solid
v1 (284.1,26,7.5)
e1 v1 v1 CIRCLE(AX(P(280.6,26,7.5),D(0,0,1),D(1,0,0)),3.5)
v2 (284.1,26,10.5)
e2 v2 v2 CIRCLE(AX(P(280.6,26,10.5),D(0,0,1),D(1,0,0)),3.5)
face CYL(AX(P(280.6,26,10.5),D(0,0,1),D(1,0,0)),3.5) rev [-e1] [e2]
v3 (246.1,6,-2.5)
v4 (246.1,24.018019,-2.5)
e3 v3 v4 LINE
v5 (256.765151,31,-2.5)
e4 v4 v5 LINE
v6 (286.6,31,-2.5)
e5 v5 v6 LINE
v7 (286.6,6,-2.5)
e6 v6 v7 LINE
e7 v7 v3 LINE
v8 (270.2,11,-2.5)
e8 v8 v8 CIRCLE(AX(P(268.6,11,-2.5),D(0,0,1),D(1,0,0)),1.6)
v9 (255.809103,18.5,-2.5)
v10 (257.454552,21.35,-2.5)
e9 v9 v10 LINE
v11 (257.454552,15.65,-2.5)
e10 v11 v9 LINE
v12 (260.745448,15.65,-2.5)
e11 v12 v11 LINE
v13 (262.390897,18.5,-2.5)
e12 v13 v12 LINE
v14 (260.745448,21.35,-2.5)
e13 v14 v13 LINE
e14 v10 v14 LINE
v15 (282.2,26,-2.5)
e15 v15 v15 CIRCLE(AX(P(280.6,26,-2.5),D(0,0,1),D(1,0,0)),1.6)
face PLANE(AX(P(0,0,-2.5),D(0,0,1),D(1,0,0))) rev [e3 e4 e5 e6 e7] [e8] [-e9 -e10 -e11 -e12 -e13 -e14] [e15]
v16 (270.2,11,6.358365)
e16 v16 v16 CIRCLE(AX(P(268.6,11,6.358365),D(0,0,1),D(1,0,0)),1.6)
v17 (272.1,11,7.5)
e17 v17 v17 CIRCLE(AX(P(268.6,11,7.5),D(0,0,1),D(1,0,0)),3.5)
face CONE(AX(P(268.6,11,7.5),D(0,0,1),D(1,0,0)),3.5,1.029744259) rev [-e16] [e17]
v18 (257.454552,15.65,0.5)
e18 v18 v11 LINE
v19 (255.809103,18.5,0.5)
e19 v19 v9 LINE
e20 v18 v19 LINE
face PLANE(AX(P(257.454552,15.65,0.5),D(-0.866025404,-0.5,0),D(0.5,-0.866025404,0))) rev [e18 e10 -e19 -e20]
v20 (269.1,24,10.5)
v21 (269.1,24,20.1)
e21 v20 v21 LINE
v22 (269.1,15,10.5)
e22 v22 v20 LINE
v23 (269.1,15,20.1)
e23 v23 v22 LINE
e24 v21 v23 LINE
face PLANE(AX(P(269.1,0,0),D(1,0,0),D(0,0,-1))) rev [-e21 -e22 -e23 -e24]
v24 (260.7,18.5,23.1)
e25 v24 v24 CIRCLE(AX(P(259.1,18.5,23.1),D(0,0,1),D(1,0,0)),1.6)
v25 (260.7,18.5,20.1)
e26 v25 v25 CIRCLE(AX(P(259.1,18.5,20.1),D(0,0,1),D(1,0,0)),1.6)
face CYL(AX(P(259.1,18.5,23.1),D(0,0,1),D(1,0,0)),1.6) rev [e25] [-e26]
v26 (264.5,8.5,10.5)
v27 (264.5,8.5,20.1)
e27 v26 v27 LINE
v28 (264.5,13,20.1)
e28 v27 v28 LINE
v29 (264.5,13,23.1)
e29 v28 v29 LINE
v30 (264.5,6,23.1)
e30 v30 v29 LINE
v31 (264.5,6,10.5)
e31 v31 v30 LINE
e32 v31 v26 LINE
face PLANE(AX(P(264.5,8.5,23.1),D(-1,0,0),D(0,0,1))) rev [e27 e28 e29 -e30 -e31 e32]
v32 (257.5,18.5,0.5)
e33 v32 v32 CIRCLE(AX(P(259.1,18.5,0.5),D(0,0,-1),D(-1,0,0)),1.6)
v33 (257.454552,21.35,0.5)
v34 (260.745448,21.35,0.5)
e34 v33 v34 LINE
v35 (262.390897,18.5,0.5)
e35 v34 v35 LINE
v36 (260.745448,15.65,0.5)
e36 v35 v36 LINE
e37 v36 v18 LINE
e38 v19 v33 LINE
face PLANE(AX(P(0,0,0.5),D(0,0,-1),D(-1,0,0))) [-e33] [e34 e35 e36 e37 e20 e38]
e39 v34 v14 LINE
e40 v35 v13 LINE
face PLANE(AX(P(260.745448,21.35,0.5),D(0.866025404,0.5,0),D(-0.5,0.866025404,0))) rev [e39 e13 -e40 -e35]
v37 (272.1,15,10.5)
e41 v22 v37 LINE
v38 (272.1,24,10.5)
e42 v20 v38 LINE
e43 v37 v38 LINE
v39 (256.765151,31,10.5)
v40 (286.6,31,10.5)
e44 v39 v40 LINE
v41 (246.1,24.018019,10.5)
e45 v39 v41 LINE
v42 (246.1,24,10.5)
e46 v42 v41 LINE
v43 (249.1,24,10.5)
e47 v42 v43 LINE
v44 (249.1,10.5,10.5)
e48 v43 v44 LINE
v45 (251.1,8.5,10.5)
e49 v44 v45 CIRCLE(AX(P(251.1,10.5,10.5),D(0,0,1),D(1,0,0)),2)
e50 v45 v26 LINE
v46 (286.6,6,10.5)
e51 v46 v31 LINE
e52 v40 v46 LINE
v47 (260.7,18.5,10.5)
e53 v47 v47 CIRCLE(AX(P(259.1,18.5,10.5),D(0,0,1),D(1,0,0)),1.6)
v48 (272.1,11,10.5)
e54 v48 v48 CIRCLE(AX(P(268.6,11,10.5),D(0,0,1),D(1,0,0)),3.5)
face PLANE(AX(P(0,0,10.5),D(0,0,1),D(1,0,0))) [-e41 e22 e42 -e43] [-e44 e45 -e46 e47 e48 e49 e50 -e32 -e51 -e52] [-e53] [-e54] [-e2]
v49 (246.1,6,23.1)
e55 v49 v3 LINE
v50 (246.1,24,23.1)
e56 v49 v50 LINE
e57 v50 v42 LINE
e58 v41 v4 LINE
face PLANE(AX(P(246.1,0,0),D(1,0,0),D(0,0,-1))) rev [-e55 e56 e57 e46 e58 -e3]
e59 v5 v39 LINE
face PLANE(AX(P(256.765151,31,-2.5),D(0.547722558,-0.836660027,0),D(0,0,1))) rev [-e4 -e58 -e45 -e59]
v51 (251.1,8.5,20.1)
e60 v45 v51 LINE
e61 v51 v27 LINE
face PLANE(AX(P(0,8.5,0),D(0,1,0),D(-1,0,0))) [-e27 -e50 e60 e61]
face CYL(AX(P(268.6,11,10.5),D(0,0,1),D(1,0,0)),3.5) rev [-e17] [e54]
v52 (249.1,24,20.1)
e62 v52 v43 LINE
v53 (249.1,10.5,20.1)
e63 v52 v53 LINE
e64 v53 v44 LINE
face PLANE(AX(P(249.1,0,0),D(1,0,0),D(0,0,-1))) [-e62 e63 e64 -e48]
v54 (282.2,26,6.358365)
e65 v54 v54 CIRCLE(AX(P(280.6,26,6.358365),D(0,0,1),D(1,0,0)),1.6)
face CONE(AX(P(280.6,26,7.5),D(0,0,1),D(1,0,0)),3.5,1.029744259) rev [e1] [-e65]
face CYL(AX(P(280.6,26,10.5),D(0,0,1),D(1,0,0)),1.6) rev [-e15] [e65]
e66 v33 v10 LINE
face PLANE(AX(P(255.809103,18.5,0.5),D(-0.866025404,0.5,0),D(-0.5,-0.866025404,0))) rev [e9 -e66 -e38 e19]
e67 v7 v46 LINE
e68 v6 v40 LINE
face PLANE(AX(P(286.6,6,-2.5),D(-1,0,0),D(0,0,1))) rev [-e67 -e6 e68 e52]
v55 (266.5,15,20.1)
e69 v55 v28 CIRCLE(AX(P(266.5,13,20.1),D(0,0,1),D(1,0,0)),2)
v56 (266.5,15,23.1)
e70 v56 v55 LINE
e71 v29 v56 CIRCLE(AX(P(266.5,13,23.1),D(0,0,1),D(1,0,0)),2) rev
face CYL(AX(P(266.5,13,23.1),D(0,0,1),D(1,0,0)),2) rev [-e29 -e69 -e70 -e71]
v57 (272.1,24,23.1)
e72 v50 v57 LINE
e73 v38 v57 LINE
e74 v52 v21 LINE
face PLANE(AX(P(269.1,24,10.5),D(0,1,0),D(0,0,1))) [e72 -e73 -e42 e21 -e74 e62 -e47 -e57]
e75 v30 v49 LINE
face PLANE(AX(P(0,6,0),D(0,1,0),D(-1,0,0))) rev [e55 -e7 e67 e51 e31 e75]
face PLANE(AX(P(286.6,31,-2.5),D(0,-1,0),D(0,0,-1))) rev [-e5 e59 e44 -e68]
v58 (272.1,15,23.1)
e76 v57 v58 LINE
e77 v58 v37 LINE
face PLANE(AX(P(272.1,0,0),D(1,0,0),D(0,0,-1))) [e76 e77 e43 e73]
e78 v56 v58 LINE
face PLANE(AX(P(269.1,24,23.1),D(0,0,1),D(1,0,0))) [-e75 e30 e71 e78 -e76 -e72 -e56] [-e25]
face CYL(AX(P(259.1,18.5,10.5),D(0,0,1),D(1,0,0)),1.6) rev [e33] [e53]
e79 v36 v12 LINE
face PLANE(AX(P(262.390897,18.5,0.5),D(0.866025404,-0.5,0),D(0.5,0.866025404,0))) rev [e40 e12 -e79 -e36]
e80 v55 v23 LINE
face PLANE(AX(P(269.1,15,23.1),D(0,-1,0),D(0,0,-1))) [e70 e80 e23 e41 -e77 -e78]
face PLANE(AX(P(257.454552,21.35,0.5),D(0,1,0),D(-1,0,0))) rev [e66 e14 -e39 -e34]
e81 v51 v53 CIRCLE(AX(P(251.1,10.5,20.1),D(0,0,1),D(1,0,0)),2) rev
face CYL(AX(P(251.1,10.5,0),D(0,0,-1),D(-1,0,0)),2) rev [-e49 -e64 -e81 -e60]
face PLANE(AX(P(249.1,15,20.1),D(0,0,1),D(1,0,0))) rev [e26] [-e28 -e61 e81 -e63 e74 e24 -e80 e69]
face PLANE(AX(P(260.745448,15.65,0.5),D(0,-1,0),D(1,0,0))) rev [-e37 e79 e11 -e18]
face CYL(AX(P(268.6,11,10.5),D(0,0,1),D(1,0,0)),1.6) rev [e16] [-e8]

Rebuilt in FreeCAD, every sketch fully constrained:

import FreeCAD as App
import Part
import Sketcher
from FreeCAD import Vector
Q = App.Units.Quantity


def edges_at(feature, points):
    """Names of the edges that pass closest to the given points."""
    edges = feature.Shape.Edges
    near = lambda p: min(range(len(edges)), key=lambda i: edges[i].distToShape(Part.Vertex(*p))[0])
    return sorted({f"Edge{near(p) + 1}" for p in points})


def add_polygon(sketch, points):
    """Adds a closed chain of lines whose ends are joined by coincident constraints."""
    first, n = sketch.GeometryCount, len(points)
    for a, b in zip(points, points[1:] + points[:1]):
        sketch.addGeometry(Part.LineSegment(App.Vector(*a, 0), App.Vector(*b, 0)), False)
    for i in range(n):
        sketch.addConstraint(Sketcher.Constraint("Coincident", first + i, 2, first + (i + 1) % n, 1))

doc = App.newDocument("Part")
body = doc.addObject("PartDesign::Body", "Body")

sketch1 = body.newObject("Sketcher::SketchObject", "Sketch")
sketch1.AttachmentSupport = (doc.getObject("YZ_Plane"), [""])
sketch1.MapMode = "FlatFace"
sketch1.AttachmentOffset = App.Placement(Vector(0, 0, 272.1), App.Rotation())
add_polygon(sketch1, [(24, 23.1), (15, 23.1), (15, 10.5), (24, 10.5)])
sketch1.addConstraint([
    Sketcher.Constraint("Horizontal", 0),
    Sketcher.Constraint("Vertical", 1),
    Sketcher.Constraint("Horizontal", 2),
    Sketcher.Constraint("Vertical", 3),
    Sketcher.Constraint("DistanceX", 0, 2, 0, 1, 9.0),
    Sketcher.Constraint("DistanceY", 1, 2, 1, 1, 12.6),
    Sketcher.Constraint("DistanceX", -1, 1, 0, 2, 15.0),
    Sketcher.Constraint("DistanceY", -1, 1, 0, 2, 23.1),
])
pad1 = body.newObject("PartDesign::Pad", "Pad")
pad1.Profile = sketch1
pad1.Length = 3
pad1.Reversed = True

sketch2 = body.newObject("Sketcher::SketchObject", "Sketch001")
sketch2.AttachmentSupport = (doc.getObject("YZ_Plane"), [""])
sketch2.MapMode = "FlatFace"
sketch2.AttachmentOffset = App.Placement(Vector(0, 0, 269.1), App.Rotation())
add_polygon(sketch2, [(24, 20.1), (15, 20.1), (15, 23.1), (24, 23.1)])
sketch2.addConstraint([
    Sketcher.Constraint("Horizontal", 0),
    Sketcher.Constraint("Vertical", 1),
    Sketcher.Constraint("Horizontal", 2),
    Sketcher.Constraint("Vertical", 3),
    Sketcher.Constraint("DistanceX", 0, 2, 0, 1, 9.0),
    Sketcher.Constraint("DistanceY", 1, 1, 1, 2, 3.0),
    Sketcher.Constraint("DistanceX", -1, 1, 0, 2, 15.0),
    Sketcher.Constraint("DistanceY", -1, 1, 0, 2, 20.1),
])
pad2 = body.newObject("PartDesign::Pad", "Pad001")
pad2.Profile = sketch2
pad2.Length = 20
pad2.Reversed = True

sketch3 = body.newObject("Sketcher::SketchObject", "Sketch002")
sketch3.AttachmentSupport = (doc.getObject("YZ_Plane"), [""])
sketch3.MapMode = "FlatFace"
sketch3.AttachmentOffset = App.Placement(Vector(0, 0, 249.1), App.Rotation())
add_polygon(sketch3, [(24, 10.5), (15, 10.5), (15, 23.1), (24, 23.1)])
sketch3.addConstraint([
    Sketcher.Constraint("Horizontal", 0),
    Sketcher.Constraint("Vertical", 1),
    Sketcher.Constraint("Horizontal", 2),
    Sketcher.Constraint("Vertical", 3),
    Sketcher.Constraint("DistanceX", 0, 2, 0, 1, 9.0),
    Sketcher.Constraint("DistanceY", 1, 1, 1, 2, 12.6),
    Sketcher.Constraint("DistanceX", -1, 1, 0, 2, 15.0),
    Sketcher.Constraint("DistanceY", -1, 1, 0, 2, 10.5),
])
pad3 = body.newObject("PartDesign::Pad", "Pad002")
pad3.Profile = sketch3
pad3.Length = 3
pad3.Reversed = True

sketch4 = body.newObject("Sketcher::SketchObject", "Sketch003")
sketch4.AttachmentSupport = (doc.getObject("XZ_Plane"), [""])
sketch4.MapMode = "FlatFace"
sketch4.AttachmentOffset = App.Placement(Vector(0, 0, -15), App.Rotation())
add_polygon(sketch4, [(264.5, 20.1), (264.5, 23.1), (246.1, 23.1), (246.1, 10.5), (249.1, 10.5), (249.1, 20.1)])
sketch4.addConstraint([
    Sketcher.Constraint("Vertical", 0),
    Sketcher.Constraint("Horizontal", 1),
    Sketcher.Constraint("Vertical", 2),
    Sketcher.Constraint("Horizontal", 3),
    Sketcher.Constraint("Vertical", 4),
    Sketcher.Constraint("Horizontal", 5),
    Sketcher.Constraint("Equal", 3, 0),
    Sketcher.Constraint("DistanceX", 3, 1, 3, 2, 3.0),
    Sketcher.Constraint("DistanceX", 1, 2, 1, 1, 18.4),
    Sketcher.Constraint("DistanceY", 2, 2, 2, 1, 12.6),
    Sketcher.Constraint("DistanceX", -1, 1, 0, 2, 264.5),
    Sketcher.Constraint("DistanceY", -1, 1, 0, 2, 23.1),
])
pad4 = body.newObject("PartDesign::Pad", "Pad003")
pad4.Profile = sketch4
pad4.Length = 6.5

sketch5 = body.newObject("Sketcher::SketchObject", "Sketch004")
sketch5.AttachmentSupport = (doc.getObject("XZ_Plane"), [""])
sketch5.MapMode = "FlatFace"
sketch5.AttachmentOffset = App.Placement(Vector(0, 0, -8.5), App.Rotation())
add_polygon(sketch5, [(246.1, 23.1), (246.1, 10.5), (264.5, 10.5), (264.5, 23.1)])
sketch5.addConstraint([
    Sketcher.Constraint("Vertical", 0),
    Sketcher.Constraint("Horizontal", 1),
    Sketcher.Constraint("Vertical", 2),
    Sketcher.Constraint("Horizontal", 3),
    Sketcher.Constraint("DistanceX", 1, 1, 1, 2, 18.4),
    Sketcher.Constraint("DistanceY", 0, 2, 0, 1, 12.6),
    Sketcher.Constraint("DistanceX", -1, 1, 0, 2, 246.1),
    Sketcher.Constraint("DistanceY", -1, 1, 0, 2, 10.5),
])
pad5 = body.newObject("PartDesign::Pad", "Pad004")
pad5.Profile = sketch5
pad5.Length = 2.5

sketch6 = body.newObject("Sketcher::SketchObject", "Sketch005")
sketch6.AttachmentSupport = (doc.getObject("XY_Plane"), [""])
sketch6.MapMode = "FlatFace"
sketch6.AttachmentOffset = App.Placement(Vector(0, 0, 10.5), App.Rotation())
add_polygon(sketch6, [(286.6, 31), (286.6, 6), (246.1, 6), (246.1, 31)])
sketch6.addConstraint([
    Sketcher.Constraint("Vertical", 0),
    Sketcher.Constraint("Horizontal", 1),
    Sketcher.Constraint("Vertical", 2),
    Sketcher.Constraint("Horizontal", 3),
    Sketcher.Constraint("DistanceY", 0, 2, 0, 1, 25.0),
    Sketcher.Constraint("DistanceX", 1, 2, 1, 1, 40.5),
    Sketcher.Constraint("DistanceY", -1, 1, 0, 2, 6.0),
    Sketcher.Constraint("DistanceX", -1, 1, 0, 2, 286.6),
])
pad6 = body.newObject("PartDesign::Pad", "Pad005")
pad6.Profile = sketch6
pad6.Length = 13
pad6.Reversed = True

sketch7 = body.newObject("Sketcher::SketchObject", "Sketch006")
sketch7.AttachmentSupport = (doc.getObject("XY_Plane"), [""])
sketch7.MapMode = "FlatFace"
sketch7.AttachmentOffset = App.Placement(Vector(0, 0, -2.5), App.Rotation())
add_polygon(sketch7, [(257.454552, 15.65), (255.809103, 18.5), (257.454552, 21.35), (260.745448, 21.35), (262.390897, 18.5), (260.745448, 15.65)])
sketch7.addConstraint([
    Sketcher.Constraint("Horizontal", 2),
    Sketcher.Constraint("Horizontal", 5),
    Sketcher.Constraint("Parallel", 0, 3),
    Sketcher.Constraint("Parallel", 1, 4),
    Sketcher.Constraint("Horizontal", 0, 2, 3, 2),
    Sketcher.Constraint("Vertical", 2, 2, 4, 2),
    Sketcher.Constraint("Vertical", 1, 2, 5, 2),
    Sketcher.Constraint("Angle", 0, Q("120 deg")),
    Sketcher.Constraint("DistanceY", -1, 1, 0, 2, 18.5),
    Sketcher.Constraint("DistanceY", 4, 2, 2, 2, 5.7),
    Sketcher.Constraint("DistanceX", 2, 1, 2, 2, 3.290897),
    Sketcher.Constraint("DistanceX", -1, 1, 1, 2, 257.454552),
])
pocket1 = body.newObject("PartDesign::Pocket", "Pocket")
pocket1.Profile = sketch7
pocket1.Length = 3
pocket1.Reversed = True

sketch8 = body.newObject("Sketcher::SketchObject", "Sketch007")
sketch8.AttachmentSupport = (doc.getObject("YZ_Plane"), [""])
sketch8.MapMode = "FlatFace"
sketch8.AttachmentOffset = App.Placement(Vector(0, 0, 280.6), App.Rotation())
add_polygon(sketch8, [(26, -2.5), (26, 10.5), (22.5, 10.5), (22.5, 7.5), (24.4, 6.358365), (24.4, -2.5)])
sketch8.addGeometry(Part.LineSegment(Vector(26, 10.5, 0), Vector(26, -2.5, 0)), True)
sketch8.addConstraint([
    Sketcher.Constraint("Vertical", 0),
    Sketcher.Constraint("Horizontal", 1),
    Sketcher.Constraint("Vertical", 2),
    Sketcher.Constraint("Vertical", 4),
    Sketcher.Constraint("Horizontal", 5),
    Sketcher.Constraint("Vertical", 6),
    Sketcher.Constraint("Coincident", 6, 1, 0, 2),
    Sketcher.Constraint("Horizontal", 4, 2, 6, 2),
    Sketcher.Constraint("DistanceY", 0, 1, 0, 2, 13.0),
    Sketcher.Constraint("DistanceY", 2, 2, 2, 1, 3.0),
    Sketcher.Constraint("Angle", 3, Q("-31 deg")),
    Sketcher.Constraint("DistanceX", 1, 2, 1, 1, 3.5),
    Sketcher.Constraint("DistanceX", 5, 1, 5, 2, 1.6),
    Sketcher.Constraint("DistanceX", -1, 1, 0, 2, 26.0),
    Sketcher.Constraint("DistanceY", -1, 1, 0, 2, 10.5),
])
groove = body.newObject("PartDesign::Groove", "Groove")
groove.Profile = sketch8
groove.ReferenceAxis = (sketch8, ["Axis0"])
groove.Angle = 360
doc.recompute()

datumline = body.newObject("PartDesign::Line", "DatumLine")
datumline.Placement = App.Placement(Vector(0, 0, 0), App.Rotation(Vector(0, 0, 1), Vector(-0.624695048, -0.780868809, 0)))
linearpattern = body.newObject("PartDesign::LinearPattern", "LinearPattern")
linearpattern.Originals = [groove]
linearpattern.Direction = (datumline, [""])
linearpattern.Mode = "offset"
linearpattern.Offset = 19.209373
linearpattern.Occurrences = 2
body.Tip = linearpattern

sketch9 = body.newObject("Sketcher::SketchObject", "Sketch008")
sketch9.AttachmentSupport = (doc.getObject("YZ_Plane"), [""])
sketch9.MapMode = "FlatFace"
sketch9.AttachmentOffset = App.Placement(Vector(0, 0, 259.1), App.Rotation())
add_polygon(sketch9, [(18.5, -2.5), (18.5, 10.5), (16.9, 10.5), (16.9, -2.5)])
sketch9.addGeometry(Part.LineSegment(Vector(18.5, 10.5, 0), Vector(18.5, -2.5, 0)), True)
sketch9.addConstraint([
    Sketcher.Constraint("Vertical", 0),
    Sketcher.Constraint("Horizontal", 1),
    Sketcher.Constraint("Vertical", 2),
    Sketcher.Constraint("Horizontal", 3),
    Sketcher.Constraint("Vertical", 4),
    Sketcher.Constraint("Coincident", 4, 1, 0, 2),
    Sketcher.Constraint("Horizontal", 2, 2, 4, 2),
    Sketcher.Constraint("DistanceY", 0, 1, 0, 2, 13.0),
    Sketcher.Constraint("DistanceX", 1, 2, 1, 1, 1.6),
    Sketcher.Constraint("DistanceX", -1, 1, 0, 2, 18.5),
    Sketcher.Constraint("DistanceY", -1, 1, 0, 2, 10.5),
])
groove2 = body.newObject("PartDesign::Groove", "Groove001")
groove2.Profile = sketch9
groove2.ReferenceAxis = (sketch9, ["Axis0"])
groove2.Angle = 360

sketch10 = body.newObject("Sketcher::SketchObject", "Sketch009")
sketch10.AttachmentSupport = (doc.getObject("XY_Plane"), [""])
sketch10.MapMode = "FlatFace"
sketch10.AttachmentOffset = App.Placement(Vector(0, 0, 23.1), App.Rotation())
sketch10.addGeometry(Part.Circle(Vector(259.1, 18.5, 0), Vector(0, 0, 1), 1.6), False)
sketch10.addConstraint([
    Sketcher.Constraint("Diameter", 0, 3.2),
    Sketcher.Constraint("DistanceX", -1, 1, 0, 3, 259.1),
    Sketcher.Constraint("DistanceY", -1, 1, 0, 3, 18.5),
])
doc.recompute()
hole = body.newObject("PartDesign::Hole", "Hole")
hole.Profile = sketch10
hole.ThreadType = "None"
hole.Diameter = 3.2
hole.DepthType = "Dimension"
hole.Depth = 25.6
hole.DrillPoint = "Flat"
doc.recompute()

chamfer = body.newObject("PartDesign::Chamfer", "Chamfer")
chamfer.Base = (hole, edges_at(hole, [(246.1, 31, 4)]))
chamfer.ChamferType = "Two distances"
chamfer.Size = 6.981981
chamfer.Size2 = 10.665151
chamfer.FlipDirection = True
doc.recompute()

fillet = body.newObject("PartDesign::Fillet", "Fillet")
fillet.Base = (chamfer, edges_at(chamfer, [(264.5, 15, 21.6), (249.1, 8.5, 15.3)]))
fillet.Radius = 2

doc.recompute()
